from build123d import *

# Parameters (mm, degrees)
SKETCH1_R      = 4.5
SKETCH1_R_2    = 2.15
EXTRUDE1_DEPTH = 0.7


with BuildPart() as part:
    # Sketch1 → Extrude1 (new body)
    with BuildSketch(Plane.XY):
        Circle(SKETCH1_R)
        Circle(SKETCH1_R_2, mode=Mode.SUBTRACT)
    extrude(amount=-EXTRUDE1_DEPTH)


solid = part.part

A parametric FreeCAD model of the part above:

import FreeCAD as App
import Part
import Sketcher

V = App.Vector
Q = App.Units.Quantity

doc = App.newDocument("Part")
body = doc.addObject("PartDesign::Body", "Body")

# Sketch on XY plane
sketch1 = body.newObject("Sketcher::SketchObject", "Sketch")
sketch1.AttachmentSupport = (doc.getObject("XY_Plane"), [""])
sketch1.MapMode = "FlatFace"
sketch1.addGeometry([
    Part.Circle(V(0, 0, 0), V(0, 0, 1), 4.5),
    Part.Circle(V(0, 0, 0), V(0, 0, 1), 2.1),
], False)
sketch1.addConstraint([
    Sketcher.Constraint("Coincident", 0, 3, -1, 1),
    Sketcher.Constraint("Coincident", 1, 3, -1, 1),
    Sketcher.Constraint("Diameter", 0, Q("9 mm")),
    Sketcher.Constraint("Diameter", 1, Q("4.3 mm")),
])
pad1 = body.newObject("PartDesign::Pad", "Pad")
pad1.Profile = sketch1
pad1.Length = 0.7
pad1.Reversed = True

doc.recompute()
